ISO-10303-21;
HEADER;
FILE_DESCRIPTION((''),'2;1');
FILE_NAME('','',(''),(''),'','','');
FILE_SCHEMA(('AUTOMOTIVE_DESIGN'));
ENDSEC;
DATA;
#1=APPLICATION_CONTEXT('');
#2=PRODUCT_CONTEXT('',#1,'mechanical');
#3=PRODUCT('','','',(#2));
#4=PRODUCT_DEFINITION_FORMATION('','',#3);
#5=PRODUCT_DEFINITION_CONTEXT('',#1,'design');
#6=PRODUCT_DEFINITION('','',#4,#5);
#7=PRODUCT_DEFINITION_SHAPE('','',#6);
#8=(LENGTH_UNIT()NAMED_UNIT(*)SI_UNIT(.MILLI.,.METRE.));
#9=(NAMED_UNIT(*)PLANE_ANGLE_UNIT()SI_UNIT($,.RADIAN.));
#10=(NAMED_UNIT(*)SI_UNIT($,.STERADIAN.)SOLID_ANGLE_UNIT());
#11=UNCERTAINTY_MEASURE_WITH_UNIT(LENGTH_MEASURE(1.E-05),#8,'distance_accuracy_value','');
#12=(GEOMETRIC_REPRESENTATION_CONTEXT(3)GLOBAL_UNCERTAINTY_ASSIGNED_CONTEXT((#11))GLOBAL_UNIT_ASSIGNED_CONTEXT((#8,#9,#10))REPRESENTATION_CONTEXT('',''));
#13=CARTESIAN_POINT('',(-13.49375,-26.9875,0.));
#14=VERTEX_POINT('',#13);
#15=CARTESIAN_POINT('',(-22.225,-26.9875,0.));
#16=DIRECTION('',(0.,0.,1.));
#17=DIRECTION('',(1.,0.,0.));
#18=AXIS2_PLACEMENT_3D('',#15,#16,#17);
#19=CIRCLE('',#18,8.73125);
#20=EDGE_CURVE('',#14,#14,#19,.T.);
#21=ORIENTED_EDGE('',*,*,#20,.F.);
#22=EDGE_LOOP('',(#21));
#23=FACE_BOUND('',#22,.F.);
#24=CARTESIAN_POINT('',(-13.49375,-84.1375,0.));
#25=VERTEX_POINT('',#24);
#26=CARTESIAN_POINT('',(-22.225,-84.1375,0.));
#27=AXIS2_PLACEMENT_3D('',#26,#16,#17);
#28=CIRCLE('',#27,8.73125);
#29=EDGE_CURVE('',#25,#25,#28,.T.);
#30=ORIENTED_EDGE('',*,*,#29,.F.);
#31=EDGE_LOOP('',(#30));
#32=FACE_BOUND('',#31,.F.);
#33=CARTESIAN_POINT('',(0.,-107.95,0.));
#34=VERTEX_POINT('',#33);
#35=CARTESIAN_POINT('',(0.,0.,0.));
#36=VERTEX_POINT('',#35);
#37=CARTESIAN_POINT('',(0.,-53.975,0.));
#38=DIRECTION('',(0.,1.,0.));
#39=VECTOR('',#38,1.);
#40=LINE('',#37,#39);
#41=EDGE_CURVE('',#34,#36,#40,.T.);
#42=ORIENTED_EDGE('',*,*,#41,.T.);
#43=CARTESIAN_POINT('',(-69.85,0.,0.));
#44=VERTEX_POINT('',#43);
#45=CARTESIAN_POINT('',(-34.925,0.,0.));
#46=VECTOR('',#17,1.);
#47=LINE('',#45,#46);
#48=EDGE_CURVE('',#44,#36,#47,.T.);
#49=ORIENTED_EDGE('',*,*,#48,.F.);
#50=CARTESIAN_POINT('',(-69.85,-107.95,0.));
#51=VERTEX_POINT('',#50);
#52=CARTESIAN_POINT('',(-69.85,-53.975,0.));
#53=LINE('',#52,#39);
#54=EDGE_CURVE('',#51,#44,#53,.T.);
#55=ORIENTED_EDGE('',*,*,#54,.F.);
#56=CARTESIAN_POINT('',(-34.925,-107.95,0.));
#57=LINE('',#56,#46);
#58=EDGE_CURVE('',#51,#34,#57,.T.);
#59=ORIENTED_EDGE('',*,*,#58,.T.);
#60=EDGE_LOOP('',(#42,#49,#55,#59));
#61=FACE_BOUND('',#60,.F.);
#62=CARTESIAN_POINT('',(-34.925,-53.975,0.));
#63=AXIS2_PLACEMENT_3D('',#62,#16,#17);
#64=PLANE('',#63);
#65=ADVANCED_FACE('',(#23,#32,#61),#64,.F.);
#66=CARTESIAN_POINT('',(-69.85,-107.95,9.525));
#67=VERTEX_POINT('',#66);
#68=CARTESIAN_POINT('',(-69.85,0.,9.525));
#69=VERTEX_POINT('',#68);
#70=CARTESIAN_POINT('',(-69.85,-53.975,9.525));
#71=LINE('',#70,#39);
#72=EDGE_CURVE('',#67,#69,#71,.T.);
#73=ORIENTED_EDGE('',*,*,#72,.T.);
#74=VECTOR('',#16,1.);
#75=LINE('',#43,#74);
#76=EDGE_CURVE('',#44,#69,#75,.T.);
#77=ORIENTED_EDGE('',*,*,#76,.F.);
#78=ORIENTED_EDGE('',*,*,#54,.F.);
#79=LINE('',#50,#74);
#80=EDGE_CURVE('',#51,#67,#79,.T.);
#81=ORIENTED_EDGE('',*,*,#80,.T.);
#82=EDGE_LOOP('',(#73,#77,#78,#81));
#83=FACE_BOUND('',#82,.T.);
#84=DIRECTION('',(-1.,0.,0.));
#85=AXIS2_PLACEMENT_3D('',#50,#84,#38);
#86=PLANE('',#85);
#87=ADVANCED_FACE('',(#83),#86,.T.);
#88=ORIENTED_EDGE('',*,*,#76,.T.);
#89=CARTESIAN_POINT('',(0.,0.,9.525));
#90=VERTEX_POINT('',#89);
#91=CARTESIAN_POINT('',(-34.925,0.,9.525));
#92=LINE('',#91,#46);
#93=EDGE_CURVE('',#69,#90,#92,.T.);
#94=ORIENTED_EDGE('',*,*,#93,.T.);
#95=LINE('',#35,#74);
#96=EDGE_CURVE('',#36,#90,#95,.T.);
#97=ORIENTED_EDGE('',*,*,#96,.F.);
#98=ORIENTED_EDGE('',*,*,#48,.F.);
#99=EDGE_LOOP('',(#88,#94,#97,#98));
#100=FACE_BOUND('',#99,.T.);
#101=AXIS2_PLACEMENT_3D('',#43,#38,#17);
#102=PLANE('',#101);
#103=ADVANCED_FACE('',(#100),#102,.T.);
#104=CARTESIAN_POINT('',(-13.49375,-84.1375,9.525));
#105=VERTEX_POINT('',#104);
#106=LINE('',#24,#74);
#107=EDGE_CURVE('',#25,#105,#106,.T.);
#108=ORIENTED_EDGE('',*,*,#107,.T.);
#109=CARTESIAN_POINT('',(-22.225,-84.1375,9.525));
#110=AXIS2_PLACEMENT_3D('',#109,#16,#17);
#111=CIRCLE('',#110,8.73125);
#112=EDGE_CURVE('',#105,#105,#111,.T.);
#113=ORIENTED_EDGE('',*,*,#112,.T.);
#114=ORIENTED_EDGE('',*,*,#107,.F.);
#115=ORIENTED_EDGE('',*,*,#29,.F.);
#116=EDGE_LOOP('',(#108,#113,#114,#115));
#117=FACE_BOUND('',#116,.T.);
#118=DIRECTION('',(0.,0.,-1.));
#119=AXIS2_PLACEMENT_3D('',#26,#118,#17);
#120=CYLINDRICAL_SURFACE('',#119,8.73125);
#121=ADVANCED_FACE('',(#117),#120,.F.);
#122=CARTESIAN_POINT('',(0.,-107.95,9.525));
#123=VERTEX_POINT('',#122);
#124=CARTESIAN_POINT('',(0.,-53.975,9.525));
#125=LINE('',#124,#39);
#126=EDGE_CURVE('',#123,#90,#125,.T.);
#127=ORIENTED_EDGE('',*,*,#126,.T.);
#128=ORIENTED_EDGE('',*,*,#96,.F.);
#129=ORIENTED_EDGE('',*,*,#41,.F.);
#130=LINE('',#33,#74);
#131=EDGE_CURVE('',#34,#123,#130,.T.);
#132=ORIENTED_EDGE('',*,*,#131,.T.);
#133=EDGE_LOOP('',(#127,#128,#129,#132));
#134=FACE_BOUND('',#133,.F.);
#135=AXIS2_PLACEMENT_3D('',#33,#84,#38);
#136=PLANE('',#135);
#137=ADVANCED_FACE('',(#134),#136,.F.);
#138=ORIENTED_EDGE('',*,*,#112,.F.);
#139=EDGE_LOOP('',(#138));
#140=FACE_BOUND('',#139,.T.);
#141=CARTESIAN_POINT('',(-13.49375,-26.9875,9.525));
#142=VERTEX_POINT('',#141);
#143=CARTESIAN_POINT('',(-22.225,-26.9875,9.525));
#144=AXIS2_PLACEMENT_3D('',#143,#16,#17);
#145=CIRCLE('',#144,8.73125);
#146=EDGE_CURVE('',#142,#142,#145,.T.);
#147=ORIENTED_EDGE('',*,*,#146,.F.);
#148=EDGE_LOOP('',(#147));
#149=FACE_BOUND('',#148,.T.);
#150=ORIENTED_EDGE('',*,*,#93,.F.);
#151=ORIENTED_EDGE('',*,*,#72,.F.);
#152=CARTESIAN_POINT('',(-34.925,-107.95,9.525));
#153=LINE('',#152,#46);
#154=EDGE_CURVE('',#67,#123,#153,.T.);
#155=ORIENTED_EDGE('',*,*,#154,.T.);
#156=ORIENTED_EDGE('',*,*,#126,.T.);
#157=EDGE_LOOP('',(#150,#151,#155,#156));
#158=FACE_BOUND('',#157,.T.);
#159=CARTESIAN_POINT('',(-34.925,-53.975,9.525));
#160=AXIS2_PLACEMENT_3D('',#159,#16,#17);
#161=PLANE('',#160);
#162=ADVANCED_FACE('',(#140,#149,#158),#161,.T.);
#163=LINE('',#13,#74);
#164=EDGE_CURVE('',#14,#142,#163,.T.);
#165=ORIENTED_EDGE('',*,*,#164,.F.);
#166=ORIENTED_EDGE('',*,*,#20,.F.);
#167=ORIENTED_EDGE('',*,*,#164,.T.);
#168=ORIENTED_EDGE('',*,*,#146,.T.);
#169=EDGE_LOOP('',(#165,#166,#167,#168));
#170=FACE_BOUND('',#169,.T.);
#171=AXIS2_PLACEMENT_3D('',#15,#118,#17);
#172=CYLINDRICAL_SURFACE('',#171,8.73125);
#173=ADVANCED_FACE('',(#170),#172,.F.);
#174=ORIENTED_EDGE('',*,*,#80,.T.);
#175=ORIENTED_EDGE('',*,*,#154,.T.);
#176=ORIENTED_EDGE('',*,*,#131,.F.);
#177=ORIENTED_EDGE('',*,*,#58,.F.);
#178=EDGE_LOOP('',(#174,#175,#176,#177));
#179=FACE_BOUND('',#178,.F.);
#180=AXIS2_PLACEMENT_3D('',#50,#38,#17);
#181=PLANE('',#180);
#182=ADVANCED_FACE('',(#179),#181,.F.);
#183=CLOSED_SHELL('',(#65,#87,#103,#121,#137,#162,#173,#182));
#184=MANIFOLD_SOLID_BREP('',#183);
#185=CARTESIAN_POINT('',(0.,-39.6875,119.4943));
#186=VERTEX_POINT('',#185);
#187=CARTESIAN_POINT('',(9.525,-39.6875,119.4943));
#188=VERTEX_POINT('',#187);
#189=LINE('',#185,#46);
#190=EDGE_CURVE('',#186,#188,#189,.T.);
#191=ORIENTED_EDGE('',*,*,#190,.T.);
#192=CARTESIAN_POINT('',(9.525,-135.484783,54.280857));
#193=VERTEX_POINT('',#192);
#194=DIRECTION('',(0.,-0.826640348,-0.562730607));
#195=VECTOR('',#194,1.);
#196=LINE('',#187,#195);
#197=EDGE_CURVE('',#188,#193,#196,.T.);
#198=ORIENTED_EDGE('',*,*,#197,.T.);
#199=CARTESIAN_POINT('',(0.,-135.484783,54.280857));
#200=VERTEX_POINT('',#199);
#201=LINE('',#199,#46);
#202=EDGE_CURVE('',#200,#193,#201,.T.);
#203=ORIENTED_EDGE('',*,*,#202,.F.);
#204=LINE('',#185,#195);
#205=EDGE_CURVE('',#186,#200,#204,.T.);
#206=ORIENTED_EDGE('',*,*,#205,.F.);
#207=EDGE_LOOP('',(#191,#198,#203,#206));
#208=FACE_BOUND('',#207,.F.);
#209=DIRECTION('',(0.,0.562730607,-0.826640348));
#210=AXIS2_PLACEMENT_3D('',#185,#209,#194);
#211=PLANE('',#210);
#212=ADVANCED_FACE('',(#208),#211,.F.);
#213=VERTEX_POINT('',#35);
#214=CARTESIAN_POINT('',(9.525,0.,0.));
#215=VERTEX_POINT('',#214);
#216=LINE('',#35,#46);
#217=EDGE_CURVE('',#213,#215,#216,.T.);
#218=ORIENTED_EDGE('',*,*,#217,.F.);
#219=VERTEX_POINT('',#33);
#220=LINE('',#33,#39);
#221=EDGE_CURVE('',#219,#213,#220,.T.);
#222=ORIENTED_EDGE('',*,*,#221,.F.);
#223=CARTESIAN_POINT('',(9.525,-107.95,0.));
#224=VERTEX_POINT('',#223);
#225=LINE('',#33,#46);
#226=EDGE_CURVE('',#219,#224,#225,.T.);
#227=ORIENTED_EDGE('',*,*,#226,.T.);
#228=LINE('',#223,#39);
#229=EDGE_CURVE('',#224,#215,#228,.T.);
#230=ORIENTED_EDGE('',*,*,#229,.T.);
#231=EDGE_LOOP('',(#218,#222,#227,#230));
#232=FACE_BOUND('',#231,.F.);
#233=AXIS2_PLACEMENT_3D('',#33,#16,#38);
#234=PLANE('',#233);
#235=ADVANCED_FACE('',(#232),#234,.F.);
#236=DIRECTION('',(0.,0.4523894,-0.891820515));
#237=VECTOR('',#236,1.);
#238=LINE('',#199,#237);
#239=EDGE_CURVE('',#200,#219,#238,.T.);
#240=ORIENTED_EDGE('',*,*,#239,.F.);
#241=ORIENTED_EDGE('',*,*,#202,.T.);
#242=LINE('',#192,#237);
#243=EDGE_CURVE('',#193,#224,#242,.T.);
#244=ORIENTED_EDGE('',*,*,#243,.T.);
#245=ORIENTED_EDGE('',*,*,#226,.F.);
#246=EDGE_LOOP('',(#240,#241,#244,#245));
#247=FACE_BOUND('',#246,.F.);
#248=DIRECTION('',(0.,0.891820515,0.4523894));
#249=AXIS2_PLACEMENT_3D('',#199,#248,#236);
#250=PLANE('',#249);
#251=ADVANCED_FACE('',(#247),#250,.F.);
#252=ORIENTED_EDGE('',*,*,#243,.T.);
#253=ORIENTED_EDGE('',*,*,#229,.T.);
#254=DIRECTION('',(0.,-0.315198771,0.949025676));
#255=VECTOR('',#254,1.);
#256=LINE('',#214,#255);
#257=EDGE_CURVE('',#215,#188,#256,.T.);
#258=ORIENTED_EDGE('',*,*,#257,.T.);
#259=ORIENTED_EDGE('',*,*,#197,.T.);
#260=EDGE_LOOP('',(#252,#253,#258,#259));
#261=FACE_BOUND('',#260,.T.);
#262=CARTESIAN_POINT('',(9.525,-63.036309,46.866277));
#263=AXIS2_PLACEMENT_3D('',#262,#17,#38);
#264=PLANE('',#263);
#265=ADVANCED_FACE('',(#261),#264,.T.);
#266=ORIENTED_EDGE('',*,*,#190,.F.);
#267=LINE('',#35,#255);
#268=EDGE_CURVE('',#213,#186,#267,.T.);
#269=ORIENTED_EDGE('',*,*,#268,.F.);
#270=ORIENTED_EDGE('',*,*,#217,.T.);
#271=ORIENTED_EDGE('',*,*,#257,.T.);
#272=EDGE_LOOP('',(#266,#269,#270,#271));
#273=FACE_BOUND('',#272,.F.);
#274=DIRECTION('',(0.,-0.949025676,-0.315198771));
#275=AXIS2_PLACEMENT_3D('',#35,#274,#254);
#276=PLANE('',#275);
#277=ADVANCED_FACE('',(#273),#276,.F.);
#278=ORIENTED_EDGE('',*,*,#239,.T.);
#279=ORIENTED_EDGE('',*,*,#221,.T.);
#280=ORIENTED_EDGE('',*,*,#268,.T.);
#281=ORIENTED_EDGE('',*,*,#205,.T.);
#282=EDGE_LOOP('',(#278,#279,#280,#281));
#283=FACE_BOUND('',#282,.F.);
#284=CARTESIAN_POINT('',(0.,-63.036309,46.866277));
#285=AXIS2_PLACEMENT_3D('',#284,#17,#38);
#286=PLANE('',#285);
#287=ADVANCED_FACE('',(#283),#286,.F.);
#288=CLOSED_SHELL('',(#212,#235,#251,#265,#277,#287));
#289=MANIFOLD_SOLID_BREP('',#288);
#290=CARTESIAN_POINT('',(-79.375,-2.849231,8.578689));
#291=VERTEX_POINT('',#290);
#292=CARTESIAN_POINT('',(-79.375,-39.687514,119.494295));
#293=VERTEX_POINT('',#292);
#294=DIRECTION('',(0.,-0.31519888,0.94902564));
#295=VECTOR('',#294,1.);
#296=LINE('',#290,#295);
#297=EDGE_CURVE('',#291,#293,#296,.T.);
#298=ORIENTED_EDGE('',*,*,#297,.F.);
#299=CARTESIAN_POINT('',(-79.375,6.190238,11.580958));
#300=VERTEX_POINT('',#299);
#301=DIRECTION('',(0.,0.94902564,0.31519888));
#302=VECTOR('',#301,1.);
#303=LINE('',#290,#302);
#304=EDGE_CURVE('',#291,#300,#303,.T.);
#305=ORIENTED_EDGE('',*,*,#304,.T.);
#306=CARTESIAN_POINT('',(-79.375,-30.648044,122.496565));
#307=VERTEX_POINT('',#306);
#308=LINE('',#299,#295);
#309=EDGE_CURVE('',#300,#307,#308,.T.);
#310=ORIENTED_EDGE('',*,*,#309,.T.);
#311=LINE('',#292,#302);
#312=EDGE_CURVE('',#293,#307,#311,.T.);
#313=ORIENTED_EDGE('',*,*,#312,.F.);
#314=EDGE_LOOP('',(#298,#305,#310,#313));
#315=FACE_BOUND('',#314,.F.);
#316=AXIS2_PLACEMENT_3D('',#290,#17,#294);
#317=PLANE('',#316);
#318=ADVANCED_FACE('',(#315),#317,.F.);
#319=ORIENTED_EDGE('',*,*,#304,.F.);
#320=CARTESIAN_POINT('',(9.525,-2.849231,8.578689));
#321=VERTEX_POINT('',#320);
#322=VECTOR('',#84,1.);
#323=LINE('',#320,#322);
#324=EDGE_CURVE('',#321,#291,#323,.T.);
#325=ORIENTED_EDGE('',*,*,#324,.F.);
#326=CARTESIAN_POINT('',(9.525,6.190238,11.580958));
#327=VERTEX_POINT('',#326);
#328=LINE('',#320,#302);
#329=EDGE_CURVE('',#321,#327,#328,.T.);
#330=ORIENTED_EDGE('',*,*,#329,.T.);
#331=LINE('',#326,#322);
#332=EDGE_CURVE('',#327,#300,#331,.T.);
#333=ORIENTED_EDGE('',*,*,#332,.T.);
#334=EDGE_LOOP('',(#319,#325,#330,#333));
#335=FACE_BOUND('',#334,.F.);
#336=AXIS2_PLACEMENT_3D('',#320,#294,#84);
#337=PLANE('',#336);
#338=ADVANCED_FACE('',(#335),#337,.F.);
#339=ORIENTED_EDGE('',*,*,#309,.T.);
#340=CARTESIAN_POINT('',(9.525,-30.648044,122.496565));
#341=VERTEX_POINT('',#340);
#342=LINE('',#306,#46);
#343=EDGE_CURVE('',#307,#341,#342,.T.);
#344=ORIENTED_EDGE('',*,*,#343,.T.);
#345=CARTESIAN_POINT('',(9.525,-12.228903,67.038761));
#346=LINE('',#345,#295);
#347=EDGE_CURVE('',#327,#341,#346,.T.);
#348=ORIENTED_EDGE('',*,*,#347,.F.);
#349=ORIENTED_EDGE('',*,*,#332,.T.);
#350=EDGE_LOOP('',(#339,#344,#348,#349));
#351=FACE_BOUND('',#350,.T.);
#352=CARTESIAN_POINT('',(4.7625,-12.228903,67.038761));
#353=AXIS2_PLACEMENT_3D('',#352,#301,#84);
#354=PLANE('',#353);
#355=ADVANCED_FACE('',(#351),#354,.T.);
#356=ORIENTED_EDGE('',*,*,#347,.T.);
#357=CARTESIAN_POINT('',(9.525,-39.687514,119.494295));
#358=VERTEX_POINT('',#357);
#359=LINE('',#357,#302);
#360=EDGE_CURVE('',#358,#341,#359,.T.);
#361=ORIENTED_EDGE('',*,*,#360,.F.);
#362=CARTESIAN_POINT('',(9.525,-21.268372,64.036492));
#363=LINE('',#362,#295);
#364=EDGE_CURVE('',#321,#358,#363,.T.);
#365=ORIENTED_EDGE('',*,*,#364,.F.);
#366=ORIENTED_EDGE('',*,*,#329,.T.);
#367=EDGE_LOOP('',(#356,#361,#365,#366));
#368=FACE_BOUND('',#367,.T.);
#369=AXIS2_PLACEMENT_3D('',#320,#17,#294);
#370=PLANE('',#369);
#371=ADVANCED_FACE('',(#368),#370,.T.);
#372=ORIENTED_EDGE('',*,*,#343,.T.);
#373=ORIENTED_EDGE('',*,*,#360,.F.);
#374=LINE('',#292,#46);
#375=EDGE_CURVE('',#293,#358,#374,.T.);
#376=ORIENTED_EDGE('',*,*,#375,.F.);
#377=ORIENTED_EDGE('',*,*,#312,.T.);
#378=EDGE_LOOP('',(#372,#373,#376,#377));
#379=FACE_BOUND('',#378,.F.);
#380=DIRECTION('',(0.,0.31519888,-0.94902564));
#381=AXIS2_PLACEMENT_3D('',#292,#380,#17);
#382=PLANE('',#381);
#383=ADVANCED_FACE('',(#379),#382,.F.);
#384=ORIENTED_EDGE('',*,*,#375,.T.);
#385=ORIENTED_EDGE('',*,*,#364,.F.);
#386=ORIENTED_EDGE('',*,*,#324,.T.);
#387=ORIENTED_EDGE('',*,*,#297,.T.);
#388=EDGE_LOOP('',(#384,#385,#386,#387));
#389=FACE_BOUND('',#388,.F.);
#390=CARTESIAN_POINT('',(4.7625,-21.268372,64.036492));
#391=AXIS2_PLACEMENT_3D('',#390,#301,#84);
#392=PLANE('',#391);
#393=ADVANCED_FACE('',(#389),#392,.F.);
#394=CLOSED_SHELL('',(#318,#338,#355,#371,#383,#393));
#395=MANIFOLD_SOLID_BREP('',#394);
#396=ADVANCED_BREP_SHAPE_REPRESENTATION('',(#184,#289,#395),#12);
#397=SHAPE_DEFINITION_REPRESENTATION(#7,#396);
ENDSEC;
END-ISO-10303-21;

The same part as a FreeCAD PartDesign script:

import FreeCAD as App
import Part
import Sketcher
Q = App.Units.Quantity


def add_polygon(sketch, points):
    """Adds a closed chain of lines whose ends are joined by coincident constraints."""
    first, n = sketch.GeometryCount, len(points)
    for a, b in zip(points, points[1:] + points[:1]):
        sketch.addGeometry(Part.LineSegment(App.Vector(*a, 0), App.Vector(*b, 0)), False)
    for i in range(n):
        sketch.addConstraint(Sketcher.Constraint("Coincident", first + i, 2, first + (i + 1) % n, 1))

doc = App.newDocument("Part")
body = doc.addObject("PartDesign::Body", "Body")

sketch1 = body.newObject("Sketcher::SketchObject", "Sketch")
sketch1.AttachmentSupport = (doc.getObject("YZ_Plane"), [""])
sketch1.MapMode = "FlatFace"
add_polygon(sketch1, [(-108, 0), (0, 0), (-40, 119), (-135, 54)])
sketch1.addConstraint([
    Sketcher.Constraint("Horizontal", 0),
    Sketcher.Constraint("Coincident", 0, 2, -1, 1),
    Sketcher.Constraint("DistanceX", 0, 1, 0, 2, Q("4.25 in")),
    Sketcher.Constraint("Distance", 2, Q("4.5625 in")),
    Sketcher.Constraint("DistanceX", 1, 2, -1, 1, Q("1.5625 in")),
    Sketcher.Constraint("DistanceY", -1, 1, 1, 2, Q("4.7045 in")),
    Sketcher.Constraint("Distance", 3, Q("60.865226 mm")),
])
pad1 = body.newObject("PartDesign::Pad", "Pad")
pad1.Profile = sketch1
pad1.Length = Q("0.375 in")
body2 = doc.addObject("PartDesign::Body", "Body001")

sketch2 = body2.newObject("Sketcher::SketchObject", "Sketch001")
sketch2.AttachmentSupport = (doc.getObject("XY_Plane001"), [""])
sketch2.MapMode = "FlatFace"
add_polygon(sketch2, [(-70, 0), (-70, -108), (0, -108), (0, 0)])
sketch2.addGeometry(Part.Circle(App.Vector(-22, -84, 0), App.Vector(0, 0, 1), 9), False)
sketch2.addGeometry(Part.Circle(App.Vector(-22, -27, 0), App.Vector(0, 0, 1), 9), False)
sketch2.addConstraint([
    Sketcher.Constraint("Vertical", 0),
    Sketcher.Constraint("Horizontal", 1),
    Sketcher.Constraint("Vertical", 2),
    Sketcher.Constraint("Horizontal", 3),
    Sketcher.Constraint("Coincident", 2, 2, -1, 1),
    Sketcher.Constraint("Equal", 4, 5),
    Sketcher.Constraint("Vertical", 4, 3, 5, 3),
    Sketcher.Constraint("Diameter", 4, Q("0.6875 in")),
    Sketcher.Constraint("DistanceX", 1, 1, 1, 2, Q("2.75 in")),
    Sketcher.Constraint("DistanceY", 0, 2, 0, 1, Q("4.25 in")),
    Sketcher.Constraint("DistanceY", 4, 3, 5, 3, Q("2.25 in")),
    Sketcher.Constraint("DistanceX", 4, 3, -1, 1, Q("0.875 in")),
    Sketcher.Constraint("DistanceY", 4, 3, -1, 1, Q("3.3125 in")),
])
pad2 = body2.newObject("PartDesign::Pad", "Pad001")
pad2.Profile = sketch2
pad2.Length = Q("0.375 in")
body3 = doc.addObject("PartDesign::Body", "Body002")

sketch3 = body3.newObject("Sketcher::SketchObject", "Sketch002")
sketch3.Placement = App.Placement(App.Vector(0, 0, 0), App.Rotation(App.Vector(-1, 0, 0), App.Vector(0, -0.31519888, 0.94902564), App.Vector(0, 0.94902564, 0.31519888), "ZXY"))
add_polygon(sketch3, [(-10, 126), (-10, 9), (79, 9), (79, 126)])
sketch3.addConstraint([
    Sketcher.Constraint("Vertical", 0),
    Sketcher.Constraint("Horizontal", 1),
    Sketcher.Constraint("Vertical", 2),
    Sketcher.Constraint("Horizontal", 3),
    Sketcher.Constraint("DistanceX", 1, 1, 1, 2, Q("3.5 in")),
    Sketcher.Constraint("DistanceX", 0, 2, -1, 1, Q("0.375 in")),
    Sketcher.Constraint("DistanceY", 0, 2, 0, 1, Q("116.87314 mm")),
    Sketcher.Constraint("DistanceY", -1, 1, 0, 2, Q("9.03947 mm")),
])
pad3 = body3.newObject("PartDesign::Pad", "Pad002")
pad3.Profile = sketch3
pad3.Length = Q("0.375 in")

doc.recompute()
